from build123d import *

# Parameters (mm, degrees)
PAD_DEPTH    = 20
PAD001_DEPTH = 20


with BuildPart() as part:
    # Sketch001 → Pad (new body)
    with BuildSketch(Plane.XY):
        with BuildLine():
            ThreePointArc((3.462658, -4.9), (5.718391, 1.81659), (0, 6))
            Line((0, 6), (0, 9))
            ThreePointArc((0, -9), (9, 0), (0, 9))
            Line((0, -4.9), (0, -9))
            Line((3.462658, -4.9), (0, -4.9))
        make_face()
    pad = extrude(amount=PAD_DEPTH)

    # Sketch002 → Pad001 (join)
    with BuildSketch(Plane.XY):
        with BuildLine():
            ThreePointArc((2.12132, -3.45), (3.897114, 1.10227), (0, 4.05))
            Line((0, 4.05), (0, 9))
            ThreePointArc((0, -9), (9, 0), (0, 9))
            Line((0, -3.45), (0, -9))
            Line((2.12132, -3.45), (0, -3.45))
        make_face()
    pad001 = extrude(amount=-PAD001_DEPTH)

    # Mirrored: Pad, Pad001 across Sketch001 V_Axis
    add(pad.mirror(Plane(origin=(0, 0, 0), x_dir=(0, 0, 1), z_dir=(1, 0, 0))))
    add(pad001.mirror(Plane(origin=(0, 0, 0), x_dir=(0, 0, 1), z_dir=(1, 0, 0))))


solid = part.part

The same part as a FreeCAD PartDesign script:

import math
import FreeCAD as App
import Part
import Sketcher
from FreeCAD import Vector

doc = App.newDocument("Part")
body = doc.addObject("PartDesign::Body", "Body")

# Sketch on XY plane
sketch1 = body.newObject("Sketcher::SketchObject", "Sketch")
sketch1.AttachmentSupport = (doc.getObject("XY_Plane"), [""])
sketch1.MapMode = "FlatFace"
sketch1.addGeometry(Part.ArcOfCircle(Part.Circle(Vector(-0.000001, 0, 0), Vector(0, 0, 1), 6), math.radians(-54.752487), math.radians(89.999994)), False)
sketch1.addGeometry(Part.LineSegment(Vector(3.462658, -4.9, 0), Vector(0, -4.9, 0)), False)
sketch1.addGeometry(Part.LineSegment(Vector(0, -4.9, 0), Vector(0, -9, 0)), False)
sketch1.addGeometry(Part.ArcOfCircle(Part.Circle(Vector(0, 0, 0), Vector(0, 0, 1), 9), math.radians(-90), math.radians(90)), False)
sketch1.addGeometry(Part.LineSegment(Vector(0, 9, 0), Vector(0, 6, 0)), False)
sketch1.addConstraint(Sketcher.Constraint("Coincident", 0, 1, 1, 1))
sketch1.addConstraint(Sketcher.Constraint("Coincident", 1, 2, 2, 1))
sketch1.addConstraint(Sketcher.Constraint("Coincident", 2, 2, 3, 1))
sketch1.addConstraint(Sketcher.Constraint("Coincident", 3, 2, 4, 1))
sketch1.addConstraint(Sketcher.Constraint("Coincident", 4, 2, 0, 2))
sketch1.addConstraint(Sketcher.Constraint("Horizontal", 1))
sketch1.addConstraint(Sketcher.Constraint("Vertical", 2))
sketch1.addConstraint(Sketcher.Constraint("Vertical", 4))
sketch1.addConstraint(Sketcher.Constraint("Coincident", 0, 3, -1, 1))
sketch1.addConstraint(Sketcher.Constraint("Coincident", 3, 3, -1, 1))
sketch1.addConstraint(Sketcher.Constraint("PointOnObject", 1, 2, -2))
sketch1.addConstraint(Sketcher.Constraint("PointOnObject", 3, 2, -2))
sketch1.addConstraint(Sketcher.Constraint("Radius", 0, 6.0))
sketch1.addConstraint(Sketcher.Constraint("Radius", 3, 9.0))
sketch1.addConstraint(Sketcher.Constraint("DistanceY", 2, 2, 2, 1, 4.1))
pad1 = body.newObject("PartDesign::Pad", "Pad")
pad1.Profile = sketch1
pad1.Length = 20

# Sketch on XY plane
sketch2 = body.newObject("Sketcher::SketchObject", "Sketch001")
sketch2.AttachmentSupport = (doc.getObject("XY_Plane"), [""])
sketch2.MapMode = "FlatFace"
sketch2.addGeometry(Part.ArcOfCircle(Part.Circle(Vector(0, 0, 0), Vector(0, 0, 1), 4.05), math.radians(-58.41366), math.radians(89.999994)), False)
sketch2.addGeometry(Part.LineSegment(Vector(2.12132, -3.45, 0), Vector(0, -3.45, 0)), False)
sketch2.addGeometry(Part.LineSegment(Vector(0, -3.45, 0), Vector(0, -9, 0)), False)
sketch2.addGeometry(Part.ArcOfCircle(Part.Circle(Vector(0, 0, 0), Vector(0, 0, 1), 9), math.radians(-90), math.radians(90)), False)
sketch2.addGeometry(Part.LineSegment(Vector(0, 9, 0), Vector(0, 4.05, 0)), False)
sketch2.addConstraint(Sketcher.Constraint("Coincident", 0, 1, 1, 1))
sketch2.addConstraint(Sketcher.Constraint("Coincident", 1, 2, 2, 1))
sketch2.addConstraint(Sketcher.Constraint("Coincident", 2, 2, 3, 1))
sketch2.addConstraint(Sketcher.Constraint("Coincident", 3, 2, 4, 1))
sketch2.addConstraint(Sketcher.Constraint("Coincident", 4, 2, 0, 2))
sketch2.addConstraint(Sketcher.Constraint("Horizontal", 1))
sketch2.addConstraint(Sketcher.Constraint("Vertical", 2))
sketch2.addConstraint(Sketcher.Constraint("Vertical", 4))
sketch2.addConstraint(Sketcher.Constraint("Coincident", 0, 3, -1, 1))
sketch2.addConstraint(Sketcher.Constraint("Coincident", 3, 3, -1, 1))
sketch2.addConstraint(Sketcher.Constraint("PointOnObject", 1, 2, -2))
sketch2.addConstraint(Sketcher.Constraint("PointOnObject", 3, 2, -2))
sketch2.addConstraint(Sketcher.Constraint("Radius", 3, 9.0))
sketch2.addConstraint(Sketcher.Constraint("Radius", 0, 4.05))
sketch2.addConstraint(Sketcher.Constraint("DistanceY", 2, 2, 2, 1, 5.55))
pad2 = body.newObject("PartDesign::Pad", "Pad001")
pad2.Profile = sketch2
pad2.Length = 20
pad2.Reversed = True
doc.recompute()

mirrored = body.newObject("PartDesign::Mirrored", "Mirrored")
mirrored.Originals = [pad1, pad2]
mirrored.MirrorPlane = (doc.getObject("YZ_Plane"), [""])
body.Tip = mirrored

doc.recompute()
